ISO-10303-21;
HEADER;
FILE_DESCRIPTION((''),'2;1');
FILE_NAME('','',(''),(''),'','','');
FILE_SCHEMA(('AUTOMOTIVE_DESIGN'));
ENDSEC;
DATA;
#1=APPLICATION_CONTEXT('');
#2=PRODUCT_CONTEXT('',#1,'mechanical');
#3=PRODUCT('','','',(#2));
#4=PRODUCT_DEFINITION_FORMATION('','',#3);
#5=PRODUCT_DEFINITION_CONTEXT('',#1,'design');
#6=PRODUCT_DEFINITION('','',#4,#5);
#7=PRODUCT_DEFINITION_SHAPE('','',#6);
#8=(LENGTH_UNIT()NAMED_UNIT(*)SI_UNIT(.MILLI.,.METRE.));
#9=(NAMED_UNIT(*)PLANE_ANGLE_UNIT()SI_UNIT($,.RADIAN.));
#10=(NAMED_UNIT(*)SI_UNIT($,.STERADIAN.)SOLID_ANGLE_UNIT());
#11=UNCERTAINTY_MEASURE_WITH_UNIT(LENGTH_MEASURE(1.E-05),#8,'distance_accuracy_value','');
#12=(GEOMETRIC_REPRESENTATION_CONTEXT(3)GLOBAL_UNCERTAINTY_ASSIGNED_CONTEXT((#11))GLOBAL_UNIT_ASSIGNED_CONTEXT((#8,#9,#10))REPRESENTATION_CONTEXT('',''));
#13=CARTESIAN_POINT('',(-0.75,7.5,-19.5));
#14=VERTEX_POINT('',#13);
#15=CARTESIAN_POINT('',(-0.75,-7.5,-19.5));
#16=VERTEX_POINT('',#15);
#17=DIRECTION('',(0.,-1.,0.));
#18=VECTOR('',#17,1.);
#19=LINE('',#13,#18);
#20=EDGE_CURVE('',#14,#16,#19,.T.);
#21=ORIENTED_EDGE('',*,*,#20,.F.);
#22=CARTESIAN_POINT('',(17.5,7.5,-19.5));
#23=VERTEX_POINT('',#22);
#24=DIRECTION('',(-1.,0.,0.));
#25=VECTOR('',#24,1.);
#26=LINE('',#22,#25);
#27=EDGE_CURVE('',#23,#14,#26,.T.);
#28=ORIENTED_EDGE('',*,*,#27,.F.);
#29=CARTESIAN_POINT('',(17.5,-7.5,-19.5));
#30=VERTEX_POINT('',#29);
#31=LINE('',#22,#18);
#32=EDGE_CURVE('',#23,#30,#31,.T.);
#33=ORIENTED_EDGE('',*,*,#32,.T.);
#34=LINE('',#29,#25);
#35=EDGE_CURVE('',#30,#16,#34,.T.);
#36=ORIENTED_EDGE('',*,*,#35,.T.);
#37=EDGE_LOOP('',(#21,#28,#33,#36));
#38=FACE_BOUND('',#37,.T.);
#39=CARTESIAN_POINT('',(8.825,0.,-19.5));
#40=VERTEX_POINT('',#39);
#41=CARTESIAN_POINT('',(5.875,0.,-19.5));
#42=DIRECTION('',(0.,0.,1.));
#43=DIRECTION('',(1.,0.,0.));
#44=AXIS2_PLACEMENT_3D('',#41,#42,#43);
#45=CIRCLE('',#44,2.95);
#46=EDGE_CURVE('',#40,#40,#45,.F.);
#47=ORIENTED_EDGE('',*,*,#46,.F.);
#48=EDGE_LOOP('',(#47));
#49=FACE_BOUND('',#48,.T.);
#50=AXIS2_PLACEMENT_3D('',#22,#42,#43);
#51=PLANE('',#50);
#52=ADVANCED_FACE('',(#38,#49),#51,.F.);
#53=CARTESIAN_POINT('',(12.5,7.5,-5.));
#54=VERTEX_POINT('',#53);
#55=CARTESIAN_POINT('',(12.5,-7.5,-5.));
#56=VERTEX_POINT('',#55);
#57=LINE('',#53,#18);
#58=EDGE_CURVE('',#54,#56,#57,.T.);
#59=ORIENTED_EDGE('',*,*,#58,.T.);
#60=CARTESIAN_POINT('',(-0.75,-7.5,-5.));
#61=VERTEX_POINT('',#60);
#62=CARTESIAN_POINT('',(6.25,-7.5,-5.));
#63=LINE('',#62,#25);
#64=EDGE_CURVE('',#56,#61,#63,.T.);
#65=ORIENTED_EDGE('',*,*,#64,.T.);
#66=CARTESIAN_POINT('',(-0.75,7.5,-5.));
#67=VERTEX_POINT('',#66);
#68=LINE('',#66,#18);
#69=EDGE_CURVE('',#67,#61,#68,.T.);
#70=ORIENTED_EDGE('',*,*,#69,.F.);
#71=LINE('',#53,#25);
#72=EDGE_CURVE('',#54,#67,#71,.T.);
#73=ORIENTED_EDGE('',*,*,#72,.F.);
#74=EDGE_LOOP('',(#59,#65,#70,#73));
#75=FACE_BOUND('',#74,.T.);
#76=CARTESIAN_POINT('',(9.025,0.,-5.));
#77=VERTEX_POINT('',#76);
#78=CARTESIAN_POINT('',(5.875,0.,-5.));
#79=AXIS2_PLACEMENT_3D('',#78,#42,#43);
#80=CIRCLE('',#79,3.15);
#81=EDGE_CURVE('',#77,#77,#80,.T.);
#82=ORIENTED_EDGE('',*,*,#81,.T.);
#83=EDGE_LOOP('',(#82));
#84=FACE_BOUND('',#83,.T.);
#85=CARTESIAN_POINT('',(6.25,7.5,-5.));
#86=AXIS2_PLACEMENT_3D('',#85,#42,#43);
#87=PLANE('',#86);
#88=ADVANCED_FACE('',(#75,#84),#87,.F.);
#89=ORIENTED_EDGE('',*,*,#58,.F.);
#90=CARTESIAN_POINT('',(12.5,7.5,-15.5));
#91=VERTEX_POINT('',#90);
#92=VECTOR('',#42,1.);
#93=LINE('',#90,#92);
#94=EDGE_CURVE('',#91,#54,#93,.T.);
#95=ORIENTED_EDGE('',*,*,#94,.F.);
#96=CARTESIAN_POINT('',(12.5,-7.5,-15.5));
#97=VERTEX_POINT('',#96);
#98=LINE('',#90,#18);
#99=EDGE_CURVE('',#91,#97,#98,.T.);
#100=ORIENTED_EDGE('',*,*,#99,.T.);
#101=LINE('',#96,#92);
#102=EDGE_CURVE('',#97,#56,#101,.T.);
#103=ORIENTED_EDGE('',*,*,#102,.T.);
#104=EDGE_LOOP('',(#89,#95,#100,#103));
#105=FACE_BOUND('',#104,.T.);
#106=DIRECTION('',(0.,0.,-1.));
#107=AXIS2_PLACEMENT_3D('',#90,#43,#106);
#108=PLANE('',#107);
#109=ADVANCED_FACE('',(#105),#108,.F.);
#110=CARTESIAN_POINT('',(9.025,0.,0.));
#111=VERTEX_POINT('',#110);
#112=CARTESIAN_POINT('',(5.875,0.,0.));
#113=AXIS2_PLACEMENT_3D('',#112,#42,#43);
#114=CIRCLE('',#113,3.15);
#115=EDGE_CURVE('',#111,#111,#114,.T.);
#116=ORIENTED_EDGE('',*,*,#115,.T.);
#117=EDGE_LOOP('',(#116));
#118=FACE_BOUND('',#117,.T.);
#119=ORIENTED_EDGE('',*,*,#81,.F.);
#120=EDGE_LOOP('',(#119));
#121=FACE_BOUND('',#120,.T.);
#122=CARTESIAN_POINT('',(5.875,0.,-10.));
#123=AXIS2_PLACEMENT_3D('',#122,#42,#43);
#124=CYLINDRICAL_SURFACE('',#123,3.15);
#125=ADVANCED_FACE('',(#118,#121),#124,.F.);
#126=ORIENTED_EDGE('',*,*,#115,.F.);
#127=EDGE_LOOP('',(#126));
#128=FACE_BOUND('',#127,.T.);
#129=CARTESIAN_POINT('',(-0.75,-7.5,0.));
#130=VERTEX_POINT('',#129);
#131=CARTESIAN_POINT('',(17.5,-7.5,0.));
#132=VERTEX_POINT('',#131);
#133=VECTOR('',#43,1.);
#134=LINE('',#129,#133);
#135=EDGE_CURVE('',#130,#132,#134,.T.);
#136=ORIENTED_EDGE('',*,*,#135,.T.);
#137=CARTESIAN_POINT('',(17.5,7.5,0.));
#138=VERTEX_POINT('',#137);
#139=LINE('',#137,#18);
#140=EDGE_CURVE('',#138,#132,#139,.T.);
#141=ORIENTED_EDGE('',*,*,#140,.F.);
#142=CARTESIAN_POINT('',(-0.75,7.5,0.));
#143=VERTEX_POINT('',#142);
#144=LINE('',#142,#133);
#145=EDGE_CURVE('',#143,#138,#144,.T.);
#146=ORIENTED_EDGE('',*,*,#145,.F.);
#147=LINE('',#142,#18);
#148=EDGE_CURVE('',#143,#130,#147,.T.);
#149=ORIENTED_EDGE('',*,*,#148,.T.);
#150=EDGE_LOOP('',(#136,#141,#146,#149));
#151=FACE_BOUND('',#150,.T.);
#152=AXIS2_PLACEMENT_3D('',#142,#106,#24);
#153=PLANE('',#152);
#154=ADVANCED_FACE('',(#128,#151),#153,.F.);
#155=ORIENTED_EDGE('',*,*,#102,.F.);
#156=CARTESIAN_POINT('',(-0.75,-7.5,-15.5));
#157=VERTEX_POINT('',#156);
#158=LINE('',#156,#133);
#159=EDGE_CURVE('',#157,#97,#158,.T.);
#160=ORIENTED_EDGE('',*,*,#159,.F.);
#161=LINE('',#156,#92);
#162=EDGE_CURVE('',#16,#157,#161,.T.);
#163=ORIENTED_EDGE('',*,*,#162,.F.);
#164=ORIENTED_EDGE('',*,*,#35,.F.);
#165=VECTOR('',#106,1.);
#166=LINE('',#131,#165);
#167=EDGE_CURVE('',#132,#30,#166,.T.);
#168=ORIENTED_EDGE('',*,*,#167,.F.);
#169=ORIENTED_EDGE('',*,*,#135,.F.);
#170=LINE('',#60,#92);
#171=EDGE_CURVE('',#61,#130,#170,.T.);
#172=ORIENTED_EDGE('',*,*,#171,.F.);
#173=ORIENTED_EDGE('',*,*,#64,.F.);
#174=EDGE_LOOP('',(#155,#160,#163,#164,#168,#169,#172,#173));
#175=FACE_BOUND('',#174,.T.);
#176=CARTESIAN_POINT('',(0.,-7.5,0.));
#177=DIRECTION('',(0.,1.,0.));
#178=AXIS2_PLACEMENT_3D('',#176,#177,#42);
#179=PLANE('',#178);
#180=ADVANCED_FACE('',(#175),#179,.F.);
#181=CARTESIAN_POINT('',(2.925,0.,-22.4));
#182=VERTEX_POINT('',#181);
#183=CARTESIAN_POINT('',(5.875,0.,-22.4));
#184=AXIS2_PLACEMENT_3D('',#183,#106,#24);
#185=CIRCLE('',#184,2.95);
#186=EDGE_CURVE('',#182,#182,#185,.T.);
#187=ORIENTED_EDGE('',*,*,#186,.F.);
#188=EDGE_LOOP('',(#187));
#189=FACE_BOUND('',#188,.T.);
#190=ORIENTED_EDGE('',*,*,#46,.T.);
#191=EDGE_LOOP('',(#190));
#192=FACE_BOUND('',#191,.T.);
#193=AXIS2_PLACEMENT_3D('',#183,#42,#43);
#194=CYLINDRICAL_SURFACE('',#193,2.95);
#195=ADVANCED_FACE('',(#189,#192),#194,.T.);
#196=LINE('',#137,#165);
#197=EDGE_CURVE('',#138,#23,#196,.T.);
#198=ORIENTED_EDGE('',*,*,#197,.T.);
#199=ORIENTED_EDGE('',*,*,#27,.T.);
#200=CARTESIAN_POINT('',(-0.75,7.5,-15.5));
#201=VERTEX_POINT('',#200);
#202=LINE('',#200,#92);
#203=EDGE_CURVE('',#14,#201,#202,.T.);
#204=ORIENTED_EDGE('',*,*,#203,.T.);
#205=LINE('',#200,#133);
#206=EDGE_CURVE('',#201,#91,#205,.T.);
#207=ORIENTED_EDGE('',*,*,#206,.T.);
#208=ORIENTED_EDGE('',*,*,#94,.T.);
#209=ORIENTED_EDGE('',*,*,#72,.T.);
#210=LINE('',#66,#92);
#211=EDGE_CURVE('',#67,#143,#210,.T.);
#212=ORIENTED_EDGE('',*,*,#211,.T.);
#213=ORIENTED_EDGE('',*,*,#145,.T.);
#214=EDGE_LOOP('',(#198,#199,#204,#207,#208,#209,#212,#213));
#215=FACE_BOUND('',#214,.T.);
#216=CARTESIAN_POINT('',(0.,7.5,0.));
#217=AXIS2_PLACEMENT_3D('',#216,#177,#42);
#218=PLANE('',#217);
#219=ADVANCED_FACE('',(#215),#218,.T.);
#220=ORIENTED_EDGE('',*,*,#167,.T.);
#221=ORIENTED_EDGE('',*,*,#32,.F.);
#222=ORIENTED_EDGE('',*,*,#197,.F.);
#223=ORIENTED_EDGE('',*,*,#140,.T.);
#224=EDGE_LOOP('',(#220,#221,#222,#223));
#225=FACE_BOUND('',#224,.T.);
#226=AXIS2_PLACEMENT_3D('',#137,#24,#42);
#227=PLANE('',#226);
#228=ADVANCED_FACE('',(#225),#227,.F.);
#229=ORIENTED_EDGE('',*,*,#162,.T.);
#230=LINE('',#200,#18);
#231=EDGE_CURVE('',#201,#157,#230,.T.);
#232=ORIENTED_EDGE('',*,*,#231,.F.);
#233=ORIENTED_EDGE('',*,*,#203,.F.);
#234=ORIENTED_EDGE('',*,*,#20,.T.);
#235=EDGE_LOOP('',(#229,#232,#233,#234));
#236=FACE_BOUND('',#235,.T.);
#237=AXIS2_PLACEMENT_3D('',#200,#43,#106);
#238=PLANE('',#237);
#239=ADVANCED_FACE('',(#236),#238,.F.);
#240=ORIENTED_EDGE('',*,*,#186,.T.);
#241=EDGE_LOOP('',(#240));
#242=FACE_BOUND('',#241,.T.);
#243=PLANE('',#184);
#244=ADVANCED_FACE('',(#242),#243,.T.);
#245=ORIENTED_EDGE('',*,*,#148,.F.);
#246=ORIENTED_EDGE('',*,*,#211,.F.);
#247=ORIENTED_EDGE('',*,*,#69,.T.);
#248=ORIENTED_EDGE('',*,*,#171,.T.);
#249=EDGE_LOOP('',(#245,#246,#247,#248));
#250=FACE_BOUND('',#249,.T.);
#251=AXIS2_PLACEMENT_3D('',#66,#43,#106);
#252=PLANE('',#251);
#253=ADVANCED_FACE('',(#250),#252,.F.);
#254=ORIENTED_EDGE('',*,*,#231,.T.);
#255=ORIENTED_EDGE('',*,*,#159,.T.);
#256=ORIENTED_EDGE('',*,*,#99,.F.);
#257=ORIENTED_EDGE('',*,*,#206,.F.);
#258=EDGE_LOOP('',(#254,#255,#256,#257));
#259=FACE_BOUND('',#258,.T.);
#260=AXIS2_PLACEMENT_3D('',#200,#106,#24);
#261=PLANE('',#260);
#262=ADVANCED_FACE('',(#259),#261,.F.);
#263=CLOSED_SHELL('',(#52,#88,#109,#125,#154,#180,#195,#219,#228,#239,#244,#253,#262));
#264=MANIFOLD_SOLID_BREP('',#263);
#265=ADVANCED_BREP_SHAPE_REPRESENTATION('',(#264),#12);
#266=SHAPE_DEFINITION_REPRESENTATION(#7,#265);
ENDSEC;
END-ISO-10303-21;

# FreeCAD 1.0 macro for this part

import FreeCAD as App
import Part
import Sketcher

V = App.Vector

doc = App.newDocument("Part")
params = doc.addObject("Spreadsheet::Sheet", "Params")
for row, (alias, value) in enumerate([
    ("sketch1_height", "4 mm"),
    ("sketch1_height2", "5 mm"),
    ("sketch1_height3", "19.5 mm"),
    ("sketch1_width", "18.25 mm"),
    ("pad1_length", "15 mm"),
    ("sketch2_diameter", "6.3 mm"),
    ("pocket1_length", "10 mm"),
    ("sketch3_diameter", "5.9 mm"),
    ("pad2_length", "2.9 mm"),
], start=1):
    params.set(f"A{row}", alias)
    params.set(f"B{row}", "=" + value)
    params.setAlias(f"B{row}", alias)

body = doc.addObject("PartDesign::Body", "Body")

# Sketch on XZ plane
sketch1 = body.newObject("Sketcher::SketchObject", "Sketch")
sketch1.AttachmentSupport = (doc.getObject("XZ_Plane"), [""])
sketch1.MapMode = "FlatFace"
sketch1.addGeometry(Part.LineSegment(V(-0.8, 0, 0), V(17.5, 0, 0)), False)
sketch1.addGeometry(Part.LineSegment(V(17.5, 0, 0), V(17.5, -19.5, 0)), False)
sketch1.addGeometry(Part.LineSegment(V(17.5, -19.5, 0), V(-0.8, -19.5, 0)), False)
sketch1.addGeometry(Part.LineSegment(V(-0.8, -19.5, 0), V(-0.8, -15.5, 0)), False)
sketch1.addGeometry(Part.LineSegment(V(-0.8, -15.5, 0), V(12.5, -15.5, 0)), False)
sketch1.addGeometry(Part.LineSegment(V(12.5, -15.5, 0), V(12.5, -5, 0)), False)
sketch1.addGeometry(Part.LineSegment(V(12.5, -5, 0), V(-0.8, -5, 0)), False)
sketch1.addGeometry(Part.LineSegment(V(-0.8, -5, 0), V(-0.8, 0, 0)), False)
sketch1.addConstraint(Sketcher.Constraint("Coincident", 0, 2, 1, 1))
sketch1.addConstraint(Sketcher.Constraint("Coincident", 1, 2, 2, 1))
sketch1.addConstraint(Sketcher.Constraint("Coincident", 2, 2, 3, 1))
sketch1.addConstraint(Sketcher.Constraint("Coincident", 3, 2, 4, 1))
sketch1.addConstraint(Sketcher.Constraint("Coincident", 4, 2, 5, 1))
sketch1.addConstraint(Sketcher.Constraint("Coincident", 5, 2, 6, 1))
sketch1.addConstraint(Sketcher.Constraint("Coincident", 6, 2, 7, 1))
sketch1.addConstraint(Sketcher.Constraint("Coincident", 7, 2, 0, 1))
sketch1.addConstraint(Sketcher.Constraint("Horizontal", 0))
sketch1.addConstraint(Sketcher.Constraint("Vertical", 1))
sketch1.addConstraint(Sketcher.Constraint("Horizontal", 2))
sketch1.addConstraint(Sketcher.Constraint("Vertical", 3))
sketch1.addConstraint(Sketcher.Constraint("Horizontal", 4))
sketch1.addConstraint(Sketcher.Constraint("Vertical", 5))
sketch1.addConstraint(Sketcher.Constraint("Horizontal", 6))
sketch1.addConstraint(Sketcher.Constraint("Vertical", 7))
sketch1.addConstraint(Sketcher.Constraint("PointOnObject", 0, 2, -1))
sketch1.addConstraint(Sketcher.Constraint("Vertical", 3, 2, 6, 2))
sketch1.addConstraint(Sketcher.Constraint("DistanceY", 3, 1, 3, 2, 4.0))
sketch1.addConstraint(Sketcher.Constraint("DistanceY", 7, 1, 7, 2, 5.0))
sketch1.addConstraint(Sketcher.Constraint("DistanceY", 1, 2, 1, 1, 19.5))
sketch1.addConstraint(Sketcher.Constraint("DistanceX", 4, 2, 1, 2, 5.0))
sketch1.addConstraint(Sketcher.Constraint("DistanceX", 0, 1, 0, 2, 18.25))
sketch1.addConstraint(Sketcher.Constraint("DistanceX", -1, 1, 0, 2, 17.5))
sketch1.setExpression("Constraints[18]", "Params.sketch1_height")
sketch1.setExpression("Constraints[19]", "Params.sketch1_height2")
sketch1.setExpression("Constraints[20]", "Params.sketch1_height3")
sketch1.setExpression("Constraints[22]", "Params.sketch1_width")
pad1 = body.newObject("PartDesign::Pad", "Pad")
pad1.Profile = sketch1
pad1.setExpression("Length", "Params.pad1_length")
pad1.Midplane = True

# Sketch on XY plane
sketch2 = body.newObject("Sketcher::SketchObject", "Sketch001")
sketch2.AttachmentSupport = (doc.getObject("XY_Plane"), [""])
sketch2.MapMode = "FlatFace"
sketch2.addGeometry(Part.Circle(V(5.9, 0, 0), V(0, 0, 1), 3.1), False)
sketch2.addConstraint(Sketcher.Constraint("PointOnObject", 0, 3, -1))
sketch2.addConstraint(Sketcher.Constraint("Diameter", 0, 6.3))
sketch2.addConstraint(Sketcher.Constraint("DistanceX", -1, 1, 0, 3, 5.875))
sketch2.setExpression("Constraints[1]", "Params.sketch2_diameter")
pocket1 = body.newObject("PartDesign::Pocket", "Pocket")
pocket1.Profile = sketch2
pocket1.setExpression("Length", "Params.pocket1_length")

# Sketch on XY plane
sketch3 = body.newObject("Sketcher::SketchObject", "Sketch002")
sketch3.AttachmentSupport = (doc.getObject("XY_Plane"), [""])
sketch3.MapMode = "FlatFace"
sketch3.AttachmentOffset = App.Placement(V(0, 0, -19.5), App.Rotation())
sketch3.addGeometry(Part.Circle(V(5.9, 0, 0), V(0, 0, 1), 3), False)
sketch3.addConstraint(Sketcher.Constraint("PointOnObject", 0, 3, -1))
sketch3.addConstraint(Sketcher.Constraint("Diameter", 0, 5.9))
sketch3.addConstraint(Sketcher.Constraint("DistanceX", -1, 1, 0, 3, 5.875))
sketch3.setExpression("Constraints[1]", "Params.sketch3_diameter")
pad2 = body.newObject("PartDesign::Pad", "Pad001")
pad2.Profile = sketch3
pad2.setExpression("Length", "Params.pad2_length")
pad2.Reversed = True

doc.recompute()
